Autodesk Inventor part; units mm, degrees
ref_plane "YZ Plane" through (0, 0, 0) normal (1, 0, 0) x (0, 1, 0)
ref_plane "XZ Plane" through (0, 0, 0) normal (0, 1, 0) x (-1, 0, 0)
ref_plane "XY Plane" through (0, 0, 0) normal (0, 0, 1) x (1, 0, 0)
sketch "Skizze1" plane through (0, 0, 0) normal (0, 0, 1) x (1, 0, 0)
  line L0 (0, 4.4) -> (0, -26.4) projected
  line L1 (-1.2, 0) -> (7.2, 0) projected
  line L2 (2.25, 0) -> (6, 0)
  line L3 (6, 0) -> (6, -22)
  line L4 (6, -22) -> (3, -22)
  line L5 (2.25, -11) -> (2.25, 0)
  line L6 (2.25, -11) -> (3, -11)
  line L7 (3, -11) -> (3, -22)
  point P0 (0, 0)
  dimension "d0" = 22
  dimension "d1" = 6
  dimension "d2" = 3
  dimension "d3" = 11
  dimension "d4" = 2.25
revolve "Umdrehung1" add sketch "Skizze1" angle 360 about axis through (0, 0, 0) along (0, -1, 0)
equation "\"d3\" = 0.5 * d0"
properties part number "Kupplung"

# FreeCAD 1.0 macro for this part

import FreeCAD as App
import Part
import Sketcher
from FreeCAD import Vector


def add_polygon(sketch, points):
    """Adds a closed chain of lines whose ends are joined by coincident constraints."""
    first, n = sketch.GeometryCount, len(points)
    for a, b in zip(points, points[1:] + points[:1]):
        sketch.addGeometry(Part.LineSegment(App.Vector(*a, 0), App.Vector(*b, 0)), False)
    for i in range(n):
        sketch.addConstraint(Sketcher.Constraint("Coincident", first + i, 2, first + (i + 1) % n, 1))

doc = App.newDocument("Part")
params = doc.addObject("Spreadsheet::Sheet", "Params")
for row, (alias, value) in enumerate([
    ("sketch1_width", "3 mm"),
    ("sketch1_height", "11 mm"),
    ("revolution_angle", "360 deg"),
], start=1):
    params.set(f"A{row}", alias)
    params.set(f"B{row}", "=" + value)
    params.setAlias(f"B{row}", alias)

body = doc.addObject("PartDesign::Body", "Body")

sketch1 = body.newObject("Sketcher::SketchObject", "Sketch")
sketch1.AttachmentSupport = (doc.getObject("XY_Plane"), [""])
sketch1.MapMode = "FlatFace"
add_polygon(sketch1, [(6, 0), (2.2, 0), (2.2, -11), (3, -11), (3, -22), (6, -22)])
sketch1.addConstraint([
    Sketcher.Constraint("Horizontal", 0),
    Sketcher.Constraint("Vertical", 1),
    Sketcher.Constraint("Horizontal", 2),
    Sketcher.Constraint("Vertical", 3),
    Sketcher.Constraint("Horizontal", 4),
    Sketcher.Constraint("Vertical", 5),
    Sketcher.Constraint("PointOnObject", 0, 2, -1),
    Sketcher.Constraint("Equal", 1, 3),
    Sketcher.Constraint("DistanceX", 4, 1, 4, 2, 3.0),
    Sketcher.Constraint("DistanceY", 1, 2, 1, 1, 11.0),
    Sketcher.Constraint("DistanceX", -1, 1, 2, 2, 3.0),
    Sketcher.Constraint("DistanceX", -1, 1, 0, 2, 2.25),
])
sketch1.setExpression("Constraints[14]", "Params.sketch1_width")
sketch1.setExpression("Constraints[15]", "Params.sketch1_height")
revolution = body.newObject("PartDesign::Revolution", "Revolution")
revolution.Profile = sketch1
revolution.ReferenceAxis = (sketch1, ["V_Axis"])
revolution.setExpression("Angle", "Params.revolution_angle")

doc.recompute()
